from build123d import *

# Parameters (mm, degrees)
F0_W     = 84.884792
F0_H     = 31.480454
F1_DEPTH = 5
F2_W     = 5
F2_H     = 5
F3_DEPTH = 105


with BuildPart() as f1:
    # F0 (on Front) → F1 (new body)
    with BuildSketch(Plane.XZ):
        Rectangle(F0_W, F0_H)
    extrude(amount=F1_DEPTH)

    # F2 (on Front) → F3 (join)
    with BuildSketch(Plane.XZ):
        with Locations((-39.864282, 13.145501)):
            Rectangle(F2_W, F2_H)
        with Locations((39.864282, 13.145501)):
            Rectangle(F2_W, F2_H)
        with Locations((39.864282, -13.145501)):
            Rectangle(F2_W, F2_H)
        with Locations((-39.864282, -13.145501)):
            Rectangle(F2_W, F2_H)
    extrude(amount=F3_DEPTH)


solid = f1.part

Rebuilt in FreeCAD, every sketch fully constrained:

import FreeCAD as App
import Part
import Sketcher

V = App.Vector
Q = App.Units.Quantity


def add_polygon(sketch, points):
    """Adds a closed chain of lines whose ends are joined by coincident constraints."""
    first, n = sketch.GeometryCount, len(points)
    for a, b in zip(points, points[1:] + points[:1]):
        sketch.addGeometry(Part.LineSegment(App.Vector(*a, 0), App.Vector(*b, 0)), False)
    for i in range(n):
        sketch.addConstraint(Sketcher.Constraint("Coincident", first + i, 2, first + (i + 1) % n, 1))

doc = App.newDocument("Part")
body = doc.addObject("PartDesign::Body", "Body")

sketch1 = body.newObject("Sketcher::SketchObject", "Sketch")
sketch1.AttachmentSupport = (doc.getObject("XZ_Plane"), [""])
sketch1.MapMode = "FlatFace"
add_polygon(sketch1, [(-42, 16), (-42, -16), (42, -16), (42, 16)])
sketch1.addConstraint([
    Sketcher.Constraint("Vertical", 0),
    Sketcher.Constraint("Horizontal", 1),
    Sketcher.Constraint("Vertical", 2),
    Sketcher.Constraint("Horizontal", 3),
    Sketcher.Constraint("Symmetric", 0, 2, 2, 2, -1, 1),
    Sketcher.Constraint("DistanceX", 1, 1, 1, 2, Q("84.884792 mm")),
    Sketcher.Constraint("DistanceY", 0, 2, 0, 1, Q("31.480454 mm")),
])
pad1 = body.newObject("PartDesign::Pad", "Pad")
pad1.Profile = sketch1
pad1.Length = 5

sketch2 = body.newObject("Sketcher::SketchObject", "Sketch001")
sketch2.AttachmentSupport = (doc.getObject("XZ_Plane"), [""])
sketch2.MapMode = "FlatFace"
add_polygon(sketch2, [(-42, 16), (-42, 11), (-37, 11), (-37, 16)])
add_polygon(sketch2, [(37, 16), (37, 11), (42, 11), (42, 16)])
add_polygon(sketch2, [(37, -11), (37, -16), (42, -16), (42, -11)])
add_polygon(sketch2, [(-42, -11), (-42, -16), (-37, -16), (-37, -11)])
sketch2.addConstraint([
    Sketcher.Constraint("Vertical", 0),
    Sketcher.Constraint("Horizontal", 1),
    Sketcher.Constraint("Vertical", 2),
    Sketcher.Constraint("Horizontal", 3),
    Sketcher.Constraint("Vertical", 4),
    Sketcher.Constraint("Horizontal", 5),
    Sketcher.Constraint("Vertical", 6),
    Sketcher.Constraint("Horizontal", 7),
    Sketcher.Constraint("Vertical", 8),
    Sketcher.Constraint("Horizontal", 9),
    Sketcher.Constraint("Vertical", 10),
    Sketcher.Constraint("Horizontal", 11),
    Sketcher.Constraint("Vertical", 12),
    Sketcher.Constraint("Horizontal", 13),
    Sketcher.Constraint("Vertical", 14),
    Sketcher.Constraint("Horizontal", 15),
    Sketcher.Constraint("Symmetric", 2, 2, 8, 2, -1, 1),
    Sketcher.Constraint("Symmetric", 0, 2, 10, 2, -1, 1),
    Sketcher.Constraint("Symmetric", 6, 2, 12, 2, -1, 1),
    Sketcher.Constraint("Symmetric", 4, 2, 14, 2, -1, 1),
    Sketcher.Constraint("Symmetric", 1, 2, 4, 2, -2),
    Sketcher.Constraint("Symmetric", 3, 2, 6, 2, -2),
    Sketcher.Constraint("Equal", 15, 0),
    Sketcher.Constraint("DistanceX", 1, 1, 1, 2, Q("5 mm")),
    Sketcher.Constraint("DistanceY", 8, 2, 4, 2, Q("26.291002 mm")),
    Sketcher.Constraint("DistanceX", 0, 2, -1, 1, Q("42.364282 mm")),
])
pad2 = body.newObject("PartDesign::Pad", "Pad001")
pad2.Profile = sketch2
pad2.Length = 105

doc.recompute()
